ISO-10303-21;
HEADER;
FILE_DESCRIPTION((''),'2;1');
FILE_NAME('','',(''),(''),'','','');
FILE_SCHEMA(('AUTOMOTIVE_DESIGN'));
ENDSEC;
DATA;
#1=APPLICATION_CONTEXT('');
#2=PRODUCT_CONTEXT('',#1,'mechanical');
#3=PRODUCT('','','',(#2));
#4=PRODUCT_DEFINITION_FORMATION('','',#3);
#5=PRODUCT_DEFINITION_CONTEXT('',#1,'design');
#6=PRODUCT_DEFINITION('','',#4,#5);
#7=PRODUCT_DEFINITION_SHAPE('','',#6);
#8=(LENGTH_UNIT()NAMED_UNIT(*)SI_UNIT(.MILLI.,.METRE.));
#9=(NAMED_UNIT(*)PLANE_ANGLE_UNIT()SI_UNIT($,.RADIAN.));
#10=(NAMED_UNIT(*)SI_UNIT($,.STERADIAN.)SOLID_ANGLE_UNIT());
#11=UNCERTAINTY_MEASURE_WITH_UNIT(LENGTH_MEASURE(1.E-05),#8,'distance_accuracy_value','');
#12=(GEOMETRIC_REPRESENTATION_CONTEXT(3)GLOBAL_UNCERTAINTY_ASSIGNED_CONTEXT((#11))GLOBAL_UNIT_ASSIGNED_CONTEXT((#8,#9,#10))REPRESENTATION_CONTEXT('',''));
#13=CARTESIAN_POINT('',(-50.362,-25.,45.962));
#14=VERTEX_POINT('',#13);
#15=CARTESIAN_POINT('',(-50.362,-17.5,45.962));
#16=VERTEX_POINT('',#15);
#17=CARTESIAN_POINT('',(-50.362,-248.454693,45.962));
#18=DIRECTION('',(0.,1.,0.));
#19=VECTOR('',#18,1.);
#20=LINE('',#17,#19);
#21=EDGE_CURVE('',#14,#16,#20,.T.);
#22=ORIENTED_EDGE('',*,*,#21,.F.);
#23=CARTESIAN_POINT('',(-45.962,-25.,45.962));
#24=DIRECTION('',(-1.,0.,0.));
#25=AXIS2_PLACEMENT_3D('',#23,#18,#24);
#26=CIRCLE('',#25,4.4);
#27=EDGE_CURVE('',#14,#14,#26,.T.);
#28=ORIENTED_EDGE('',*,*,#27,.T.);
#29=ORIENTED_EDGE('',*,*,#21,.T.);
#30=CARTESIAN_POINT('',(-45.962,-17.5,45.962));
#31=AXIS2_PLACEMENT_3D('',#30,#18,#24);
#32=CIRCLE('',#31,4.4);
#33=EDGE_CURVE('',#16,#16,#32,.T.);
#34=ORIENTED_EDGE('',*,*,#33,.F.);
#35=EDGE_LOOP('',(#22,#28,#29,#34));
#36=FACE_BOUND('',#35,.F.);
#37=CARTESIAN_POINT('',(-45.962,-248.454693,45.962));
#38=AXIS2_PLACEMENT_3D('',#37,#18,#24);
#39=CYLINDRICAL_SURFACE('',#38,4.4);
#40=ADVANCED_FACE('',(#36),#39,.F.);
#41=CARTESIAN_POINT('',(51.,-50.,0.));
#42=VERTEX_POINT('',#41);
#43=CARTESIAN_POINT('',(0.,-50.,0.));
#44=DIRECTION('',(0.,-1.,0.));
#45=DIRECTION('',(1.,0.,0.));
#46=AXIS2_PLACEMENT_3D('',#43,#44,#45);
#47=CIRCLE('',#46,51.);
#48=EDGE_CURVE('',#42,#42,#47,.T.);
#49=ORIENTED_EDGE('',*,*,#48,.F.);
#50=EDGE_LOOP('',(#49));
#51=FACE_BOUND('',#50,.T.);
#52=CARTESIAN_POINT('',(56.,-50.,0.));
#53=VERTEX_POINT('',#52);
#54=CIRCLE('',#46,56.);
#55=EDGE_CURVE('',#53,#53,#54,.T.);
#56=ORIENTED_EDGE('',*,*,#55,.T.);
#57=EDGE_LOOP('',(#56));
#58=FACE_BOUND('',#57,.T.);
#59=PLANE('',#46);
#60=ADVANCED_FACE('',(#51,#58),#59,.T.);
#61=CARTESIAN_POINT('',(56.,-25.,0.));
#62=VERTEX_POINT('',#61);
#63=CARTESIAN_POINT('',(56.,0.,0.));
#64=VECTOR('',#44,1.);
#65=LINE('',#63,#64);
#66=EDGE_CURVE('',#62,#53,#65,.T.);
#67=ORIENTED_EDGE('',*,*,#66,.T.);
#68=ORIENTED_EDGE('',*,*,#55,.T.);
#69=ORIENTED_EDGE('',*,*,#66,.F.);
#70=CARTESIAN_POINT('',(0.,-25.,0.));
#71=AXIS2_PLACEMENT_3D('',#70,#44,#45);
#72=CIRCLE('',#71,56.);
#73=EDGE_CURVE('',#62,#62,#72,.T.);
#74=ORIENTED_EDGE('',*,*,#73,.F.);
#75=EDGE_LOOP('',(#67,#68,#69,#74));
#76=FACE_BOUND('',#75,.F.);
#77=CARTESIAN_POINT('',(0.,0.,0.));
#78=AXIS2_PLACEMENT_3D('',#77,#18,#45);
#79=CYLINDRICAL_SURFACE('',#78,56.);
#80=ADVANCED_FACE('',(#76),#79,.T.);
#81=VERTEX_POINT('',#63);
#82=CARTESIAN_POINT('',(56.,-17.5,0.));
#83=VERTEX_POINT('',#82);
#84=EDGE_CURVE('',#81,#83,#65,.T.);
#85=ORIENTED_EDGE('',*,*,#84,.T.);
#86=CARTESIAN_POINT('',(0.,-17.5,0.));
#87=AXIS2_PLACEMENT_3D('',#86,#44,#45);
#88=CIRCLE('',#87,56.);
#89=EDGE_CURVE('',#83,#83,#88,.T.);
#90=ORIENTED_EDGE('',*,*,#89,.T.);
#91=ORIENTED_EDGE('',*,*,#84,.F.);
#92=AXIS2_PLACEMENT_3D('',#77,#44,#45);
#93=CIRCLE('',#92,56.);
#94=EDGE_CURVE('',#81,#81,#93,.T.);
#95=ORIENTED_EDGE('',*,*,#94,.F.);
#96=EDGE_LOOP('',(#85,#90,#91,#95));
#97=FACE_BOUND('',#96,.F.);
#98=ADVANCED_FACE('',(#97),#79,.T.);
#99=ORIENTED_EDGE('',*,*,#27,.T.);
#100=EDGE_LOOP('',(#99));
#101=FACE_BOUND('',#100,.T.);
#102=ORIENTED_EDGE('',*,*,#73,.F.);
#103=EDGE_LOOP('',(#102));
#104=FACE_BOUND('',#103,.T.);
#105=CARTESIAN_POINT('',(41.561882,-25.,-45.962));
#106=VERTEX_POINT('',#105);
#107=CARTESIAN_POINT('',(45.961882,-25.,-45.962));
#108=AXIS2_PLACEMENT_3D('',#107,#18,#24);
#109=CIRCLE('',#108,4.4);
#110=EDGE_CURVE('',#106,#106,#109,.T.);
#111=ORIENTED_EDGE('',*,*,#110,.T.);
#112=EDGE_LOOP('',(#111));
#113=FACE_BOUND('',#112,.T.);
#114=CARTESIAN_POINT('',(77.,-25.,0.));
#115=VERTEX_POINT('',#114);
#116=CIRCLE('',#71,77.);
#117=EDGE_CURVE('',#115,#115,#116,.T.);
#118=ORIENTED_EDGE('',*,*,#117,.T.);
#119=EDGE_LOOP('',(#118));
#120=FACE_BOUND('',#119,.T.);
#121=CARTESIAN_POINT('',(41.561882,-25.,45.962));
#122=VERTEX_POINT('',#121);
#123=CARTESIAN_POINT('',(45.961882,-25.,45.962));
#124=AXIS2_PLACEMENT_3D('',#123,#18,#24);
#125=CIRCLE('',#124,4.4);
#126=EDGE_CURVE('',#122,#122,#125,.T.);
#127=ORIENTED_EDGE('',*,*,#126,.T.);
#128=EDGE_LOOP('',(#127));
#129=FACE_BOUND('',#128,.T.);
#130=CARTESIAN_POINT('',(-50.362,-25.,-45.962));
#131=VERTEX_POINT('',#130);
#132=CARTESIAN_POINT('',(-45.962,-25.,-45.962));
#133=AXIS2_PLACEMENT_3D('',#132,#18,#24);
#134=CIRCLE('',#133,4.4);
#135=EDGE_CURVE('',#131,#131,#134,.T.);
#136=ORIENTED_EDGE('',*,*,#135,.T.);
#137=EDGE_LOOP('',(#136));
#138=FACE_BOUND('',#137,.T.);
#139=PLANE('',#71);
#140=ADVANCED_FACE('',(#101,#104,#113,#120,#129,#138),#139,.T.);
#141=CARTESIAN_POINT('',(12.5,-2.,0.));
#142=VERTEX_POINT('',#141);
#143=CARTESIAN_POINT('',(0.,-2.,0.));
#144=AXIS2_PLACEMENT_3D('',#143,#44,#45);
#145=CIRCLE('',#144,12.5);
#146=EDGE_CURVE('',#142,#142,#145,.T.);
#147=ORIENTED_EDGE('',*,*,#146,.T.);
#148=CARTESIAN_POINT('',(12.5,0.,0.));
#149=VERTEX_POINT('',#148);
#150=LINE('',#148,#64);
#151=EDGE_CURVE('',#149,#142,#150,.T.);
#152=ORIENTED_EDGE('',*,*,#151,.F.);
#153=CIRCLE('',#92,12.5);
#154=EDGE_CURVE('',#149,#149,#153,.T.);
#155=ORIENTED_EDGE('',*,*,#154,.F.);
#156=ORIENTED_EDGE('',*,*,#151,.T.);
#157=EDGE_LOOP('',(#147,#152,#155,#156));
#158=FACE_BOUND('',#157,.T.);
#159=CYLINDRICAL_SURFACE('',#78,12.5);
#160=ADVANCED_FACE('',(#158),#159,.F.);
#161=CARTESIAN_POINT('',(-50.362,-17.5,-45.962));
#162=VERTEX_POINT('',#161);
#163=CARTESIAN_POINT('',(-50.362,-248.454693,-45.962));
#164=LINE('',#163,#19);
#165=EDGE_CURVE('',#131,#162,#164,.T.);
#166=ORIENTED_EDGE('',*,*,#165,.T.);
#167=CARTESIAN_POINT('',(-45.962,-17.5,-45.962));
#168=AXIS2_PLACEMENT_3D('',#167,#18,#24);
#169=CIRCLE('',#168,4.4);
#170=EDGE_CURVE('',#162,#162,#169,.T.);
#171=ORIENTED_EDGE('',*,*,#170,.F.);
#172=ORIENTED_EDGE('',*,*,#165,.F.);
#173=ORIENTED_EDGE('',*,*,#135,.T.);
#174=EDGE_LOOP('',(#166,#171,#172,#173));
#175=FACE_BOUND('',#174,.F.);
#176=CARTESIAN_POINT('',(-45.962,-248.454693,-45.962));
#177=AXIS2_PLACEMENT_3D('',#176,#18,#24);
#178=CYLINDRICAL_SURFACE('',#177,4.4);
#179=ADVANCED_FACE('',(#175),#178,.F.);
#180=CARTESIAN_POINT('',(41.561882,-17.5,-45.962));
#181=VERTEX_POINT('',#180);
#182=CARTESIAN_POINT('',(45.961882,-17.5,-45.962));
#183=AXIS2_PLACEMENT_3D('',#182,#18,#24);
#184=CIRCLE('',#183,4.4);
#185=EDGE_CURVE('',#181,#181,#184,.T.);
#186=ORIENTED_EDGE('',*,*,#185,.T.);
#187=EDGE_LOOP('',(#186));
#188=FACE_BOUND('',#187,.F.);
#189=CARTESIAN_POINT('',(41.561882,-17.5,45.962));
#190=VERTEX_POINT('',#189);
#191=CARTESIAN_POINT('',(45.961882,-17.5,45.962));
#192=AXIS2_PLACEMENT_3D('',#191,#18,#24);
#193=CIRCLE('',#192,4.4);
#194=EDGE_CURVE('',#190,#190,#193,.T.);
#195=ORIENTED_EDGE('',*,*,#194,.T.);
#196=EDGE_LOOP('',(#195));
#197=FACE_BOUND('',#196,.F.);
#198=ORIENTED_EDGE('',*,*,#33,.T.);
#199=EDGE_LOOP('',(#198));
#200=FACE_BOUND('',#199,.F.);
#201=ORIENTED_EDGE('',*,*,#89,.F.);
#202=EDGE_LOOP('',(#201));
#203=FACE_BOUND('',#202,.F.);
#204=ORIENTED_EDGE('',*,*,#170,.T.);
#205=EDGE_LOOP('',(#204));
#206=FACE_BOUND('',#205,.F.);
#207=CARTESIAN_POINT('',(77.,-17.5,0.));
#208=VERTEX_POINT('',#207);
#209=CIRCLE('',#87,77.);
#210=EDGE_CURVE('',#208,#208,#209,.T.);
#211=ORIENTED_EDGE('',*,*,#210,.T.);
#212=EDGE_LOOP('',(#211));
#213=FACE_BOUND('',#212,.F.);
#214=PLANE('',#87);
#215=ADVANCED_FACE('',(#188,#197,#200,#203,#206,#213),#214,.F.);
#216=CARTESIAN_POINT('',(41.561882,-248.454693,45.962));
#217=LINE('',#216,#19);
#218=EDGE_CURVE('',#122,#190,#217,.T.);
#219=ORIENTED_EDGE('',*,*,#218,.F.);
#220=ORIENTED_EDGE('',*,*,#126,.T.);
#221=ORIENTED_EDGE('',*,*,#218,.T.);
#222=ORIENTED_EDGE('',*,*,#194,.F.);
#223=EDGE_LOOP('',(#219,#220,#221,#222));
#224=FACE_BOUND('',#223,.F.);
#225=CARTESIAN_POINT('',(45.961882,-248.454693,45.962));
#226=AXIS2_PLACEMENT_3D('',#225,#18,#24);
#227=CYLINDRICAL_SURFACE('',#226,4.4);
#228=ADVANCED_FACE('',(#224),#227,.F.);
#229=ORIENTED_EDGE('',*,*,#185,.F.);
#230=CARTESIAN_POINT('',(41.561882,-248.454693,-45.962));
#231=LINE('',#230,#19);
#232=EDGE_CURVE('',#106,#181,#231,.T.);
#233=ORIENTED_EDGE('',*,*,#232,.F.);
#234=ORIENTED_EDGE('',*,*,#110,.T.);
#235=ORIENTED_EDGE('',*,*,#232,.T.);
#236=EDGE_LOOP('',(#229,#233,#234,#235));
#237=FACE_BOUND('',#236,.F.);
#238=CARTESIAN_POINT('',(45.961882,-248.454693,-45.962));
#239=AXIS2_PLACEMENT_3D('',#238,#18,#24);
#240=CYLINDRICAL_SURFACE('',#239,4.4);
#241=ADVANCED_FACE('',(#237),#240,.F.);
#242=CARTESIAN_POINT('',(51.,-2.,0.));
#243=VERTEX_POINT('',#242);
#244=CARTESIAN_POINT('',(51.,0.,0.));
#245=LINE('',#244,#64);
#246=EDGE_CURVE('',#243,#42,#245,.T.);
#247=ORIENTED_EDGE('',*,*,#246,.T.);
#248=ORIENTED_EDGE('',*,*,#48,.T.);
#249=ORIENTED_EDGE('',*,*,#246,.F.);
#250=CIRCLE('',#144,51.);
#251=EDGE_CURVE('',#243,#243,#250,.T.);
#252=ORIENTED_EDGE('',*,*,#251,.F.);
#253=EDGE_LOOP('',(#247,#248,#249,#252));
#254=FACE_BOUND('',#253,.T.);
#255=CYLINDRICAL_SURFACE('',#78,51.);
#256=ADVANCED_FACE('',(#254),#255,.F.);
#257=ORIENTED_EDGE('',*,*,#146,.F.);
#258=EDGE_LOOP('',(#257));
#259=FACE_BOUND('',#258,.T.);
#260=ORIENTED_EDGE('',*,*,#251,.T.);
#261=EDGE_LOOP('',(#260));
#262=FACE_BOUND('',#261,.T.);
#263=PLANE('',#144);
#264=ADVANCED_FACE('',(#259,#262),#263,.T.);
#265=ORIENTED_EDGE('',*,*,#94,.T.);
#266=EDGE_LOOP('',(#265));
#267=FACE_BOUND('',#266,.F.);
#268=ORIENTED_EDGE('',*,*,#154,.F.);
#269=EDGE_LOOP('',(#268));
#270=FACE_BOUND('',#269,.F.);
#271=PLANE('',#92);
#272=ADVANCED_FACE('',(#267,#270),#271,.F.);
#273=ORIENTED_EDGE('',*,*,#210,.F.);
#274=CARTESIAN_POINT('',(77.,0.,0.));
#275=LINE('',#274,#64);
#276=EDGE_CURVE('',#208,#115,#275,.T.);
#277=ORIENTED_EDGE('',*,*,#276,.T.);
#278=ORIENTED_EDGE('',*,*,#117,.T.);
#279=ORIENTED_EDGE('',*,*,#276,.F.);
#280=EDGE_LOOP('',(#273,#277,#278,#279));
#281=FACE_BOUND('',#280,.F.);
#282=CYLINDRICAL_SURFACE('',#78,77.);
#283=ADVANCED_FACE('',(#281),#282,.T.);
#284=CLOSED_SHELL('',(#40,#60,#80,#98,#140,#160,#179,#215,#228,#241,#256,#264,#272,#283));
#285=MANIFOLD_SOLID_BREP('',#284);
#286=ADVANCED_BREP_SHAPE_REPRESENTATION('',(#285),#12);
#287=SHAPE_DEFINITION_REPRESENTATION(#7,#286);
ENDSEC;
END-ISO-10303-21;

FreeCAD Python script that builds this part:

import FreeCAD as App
import Part
import Sketcher
from FreeCAD import Vector

doc = App.newDocument("Part")
body = doc.addObject("PartDesign::Body", "Body")

# Sketch on XZ plane
sketch1 = body.newObject("Sketcher::SketchObject", "Sketch")
sketch1.AttachmentSupport = (doc.getObject("XZ_Plane"), [""])
sketch1.MapMode = "FlatFace"
sketch1.addGeometry(Part.Circle(Vector(0, 0, 0), Vector(0, 0, 1), 56), False)
sketch1.addGeometry(Part.Circle(Vector(0, 0, 0), Vector(0, 0, 1), 51), False)
sketch1.addConstraint(Sketcher.Constraint("Coincident", 0, 3, -1, 1))
sketch1.addConstraint(Sketcher.Constraint("Coincident", 1, 3, -1, 1))
sketch1.addConstraint(Sketcher.Constraint("Diameter", 0, 112.0))
sketch1.addConstraint(Sketcher.Constraint("Diameter", 1, 102.0))
pad1 = body.newObject("PartDesign::Pad", "Pad")
pad1.Profile = sketch1
pad1.Length = 50

# Sketch on XZ plane
sketch2 = body.newObject("Sketcher::SketchObject", "Sketch001")
sketch2.AttachmentSupport = (doc.getObject("XZ_Plane"), [""])
sketch2.MapMode = "FlatFace"
sketch2.addGeometry(Part.Circle(Vector(0, 0, 0), Vector(0, 0, 1), 77), False)
sketch2.addGeometry(Part.Circle(Vector(0, 0, 0), Vector(0, 0, 1), 56), False)
sketch2.addConstraint(Sketcher.Constraint("Coincident", 0, 3, -1, 1))
sketch2.addConstraint(Sketcher.Constraint("Coincident", 1, 3, -1, 1))
sketch2.addConstraint(Sketcher.Constraint("Diameter", 0, 154.0))
sketch2.addConstraint(Sketcher.Constraint("Diameter", 1, 112.0))
pad2 = body.newObject("PartDesign::Pad", "Pad001")
pad2.Profile = sketch2
pad2.Length = 25

# Sketch on XZ plane
sketch3 = body.newObject("Sketcher::SketchObject", "Sketch002")
sketch3.AttachmentSupport = (doc.getObject("XZ_Plane"), [""])
sketch3.MapMode = "FlatFace"
sketch3.addGeometry(Part.Circle(Vector(0, 0, 0), Vector(0, 0, 1), 77), False)
sketch3.addGeometry(Part.Circle(Vector(0, 0, 0), Vector(0, 0, 1), 56), False)
sketch3.addConstraint(Sketcher.Constraint("Coincident", 0, 3, -1, 1))
sketch3.addConstraint(Sketcher.Constraint("Coincident", 1, 3, -1, 1))
sketch3.addConstraint(Sketcher.Constraint("Diameter", 0, 154.0))
sketch3.addConstraint(Sketcher.Constraint("Diameter", 1, 112.0))
pocket1 = body.newObject("PartDesign::Pocket", "Pocket")
pocket1.Profile = sketch3
pocket1.Length = 17.5
pocket1.Reversed = True

# Sketch on XZ plane
sketch4 = body.newObject("Sketcher::SketchObject", "Sketch003")
sketch4.AttachmentSupport = (doc.getObject("XZ_Plane"), [""])
sketch4.MapMode = "FlatFace"
sketch4.AttachmentOffset = App.Placement(Vector(0, 0, 25), App.Rotation())
sketch4.addGeometry(Part.Circle(Vector(-46, 46, 0), Vector(0, 0, 1), 4.4), False)
sketch4.addGeometry(Part.Circle(Vector(46, 46, 0), Vector(0, 0, 1), 4.4), False)
sketch4.addGeometry(Part.Circle(Vector(46, -46, 0), Vector(0, 0, 1), 4.4), False)
sketch4.addGeometry(Part.Circle(Vector(-46, -46, 0), Vector(0, 0, 1), 4.4), False)
sketch4.addConstraint(Sketcher.Constraint("Equal", 0, 1))
sketch4.addConstraint(Sketcher.Constraint("Equal", 1, 2))
sketch4.addConstraint(Sketcher.Constraint("Equal", 2, 3))
sketch4.addConstraint(Sketcher.Constraint("Symmetric", 1, 3, 2, 3, -1))
sketch4.addConstraint(Sketcher.Constraint("Symmetric", 0, 3, 3, 3, -1))
sketch4.addConstraint(Sketcher.Constraint("Horizontal", 0, 3, 1, 3))
sketch4.addConstraint(Sketcher.Constraint("Diameter", 0, 8.8))
sketch4.addConstraint(Sketcher.Constraint("DistanceX", 0, 3, -1, 1, 45.962))
sketch4.addConstraint(Sketcher.Constraint("DistanceY", -1, 1, 0, 3, 45.962))
sketch4.addConstraint(Sketcher.Constraint("DistanceX", -1, 1, 1, 3, 45.961882))
doc.recompute()
hole = body.newObject("PartDesign::Hole", "Hole")
hole.Profile = sketch4
hole.ThreadType = "None"
hole.Diameter = 8.8
hole.DepthType = "ThroughAll"

# Sketch on XZ plane
sketch5 = body.newObject("Sketcher::SketchObject", "Sketch004")
sketch5.AttachmentSupport = (doc.getObject("XZ_Plane"), [""])
sketch5.MapMode = "FlatFace"
sketch5.addGeometry(Part.Circle(Vector(0, 0, 0), Vector(0, 0, 1), 51), False)
sketch5.addGeometry(Part.Circle(Vector(0, 0, 0), Vector(0, 0, 1), 12), False)
sketch5.addConstraint(Sketcher.Constraint("Coincident", 0, 3, -1, 1))
sketch5.addConstraint(Sketcher.Constraint("Coincident", 1, 3, -1, 1))
sketch5.addConstraint(Sketcher.Constraint("Diameter", 0, 102.0))
sketch5.addConstraint(Sketcher.Constraint("Diameter", 1, 25.0))
pad3 = body.newObject("PartDesign::Pad", "Pad002")
pad3.Profile = sketch5
pad3.Length = 2

doc.recompute()
